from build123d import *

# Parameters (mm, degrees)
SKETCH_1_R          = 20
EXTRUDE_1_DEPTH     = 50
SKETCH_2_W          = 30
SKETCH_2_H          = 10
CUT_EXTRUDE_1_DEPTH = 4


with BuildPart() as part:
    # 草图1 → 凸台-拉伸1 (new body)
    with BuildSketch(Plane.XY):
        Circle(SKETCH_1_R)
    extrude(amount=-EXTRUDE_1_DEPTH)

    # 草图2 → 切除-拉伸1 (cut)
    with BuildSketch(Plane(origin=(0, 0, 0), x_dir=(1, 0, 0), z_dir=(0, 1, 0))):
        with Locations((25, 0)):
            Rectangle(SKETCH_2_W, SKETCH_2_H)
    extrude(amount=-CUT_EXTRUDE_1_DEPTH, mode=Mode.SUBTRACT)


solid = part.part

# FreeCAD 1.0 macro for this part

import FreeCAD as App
import Part
import Sketcher

V = App.Vector
Q = App.Units.Quantity

doc = App.newDocument("Part")
body = doc.addObject("PartDesign::Body", "Body")

# Sketch on XY plane
sketch1 = body.newObject("Sketcher::SketchObject", "Sketch")
sketch1.AttachmentSupport = (doc.getObject("XY_Plane"), [""])
sketch1.MapMode = "FlatFace"
sketch1.addGeometry(Part.Circle(V(0, 0, 0), V(0, 0, 1), 20), False)
sketch1.addConstraint([
    Sketcher.Constraint("Coincident", 0, 3, -1, 1),
    Sketcher.Constraint("Diameter", 0, Q("40 mm")),
])
pad1 = body.newObject("PartDesign::Pad", "Pad")
pad1.Profile = sketch1
pad1.Length = 50
pad1.Reversed = True

# Sketch on XZ plane
sketch2 = body.newObject("Sketcher::SketchObject", "Sketch001")
sketch2.AttachmentSupport = (doc.getObject("XZ_Plane"), [""])
sketch2.MapMode = "FlatFace"
sketch2.addGeometry([
    Part.LineSegment(V(10, -5, 0), V(10, 5, 0)),
    Part.LineSegment(V(10, 5, 0), V(40, 5, 0)),
    Part.LineSegment(V(40, 5, 0), V(40, -5, 0)),
    Part.LineSegment(V(40, -5, 0), V(10, -5, 0)),
], False)
sketch2.addConstraint([
    Sketcher.Constraint("Coincident", 0, 2, 1, 1),
    Sketcher.Constraint("Coincident", 1, 2, 2, 1),
    Sketcher.Constraint("Coincident", 2, 2, 3, 1),
    Sketcher.Constraint("Coincident", 3, 2, 0, 1),
    Sketcher.Constraint("Vertical", 0),
    Sketcher.Constraint("Horizontal", 1),
    Sketcher.Constraint("Vertical", 2),
    Sketcher.Constraint("Horizontal", 3),
    Sketcher.Constraint("DistanceX", 1, 1, 1, 2, Q("30 mm")),
    Sketcher.Constraint("DistanceY", 0, 1, 0, 2, Q("10 mm")),
    Sketcher.Constraint("DistanceX", -1, 1, 0, 2, Q("10 mm")),
    Sketcher.Constraint("DistanceY", -1, 1, 0, 2, Q("5 mm")),
])
pocket1 = body.newObject("PartDesign::Pocket", "Pocket")
pocket1.Profile = sketch2
pocket1.Length = 4
pocket1.Reversed = True

doc.recompute()
